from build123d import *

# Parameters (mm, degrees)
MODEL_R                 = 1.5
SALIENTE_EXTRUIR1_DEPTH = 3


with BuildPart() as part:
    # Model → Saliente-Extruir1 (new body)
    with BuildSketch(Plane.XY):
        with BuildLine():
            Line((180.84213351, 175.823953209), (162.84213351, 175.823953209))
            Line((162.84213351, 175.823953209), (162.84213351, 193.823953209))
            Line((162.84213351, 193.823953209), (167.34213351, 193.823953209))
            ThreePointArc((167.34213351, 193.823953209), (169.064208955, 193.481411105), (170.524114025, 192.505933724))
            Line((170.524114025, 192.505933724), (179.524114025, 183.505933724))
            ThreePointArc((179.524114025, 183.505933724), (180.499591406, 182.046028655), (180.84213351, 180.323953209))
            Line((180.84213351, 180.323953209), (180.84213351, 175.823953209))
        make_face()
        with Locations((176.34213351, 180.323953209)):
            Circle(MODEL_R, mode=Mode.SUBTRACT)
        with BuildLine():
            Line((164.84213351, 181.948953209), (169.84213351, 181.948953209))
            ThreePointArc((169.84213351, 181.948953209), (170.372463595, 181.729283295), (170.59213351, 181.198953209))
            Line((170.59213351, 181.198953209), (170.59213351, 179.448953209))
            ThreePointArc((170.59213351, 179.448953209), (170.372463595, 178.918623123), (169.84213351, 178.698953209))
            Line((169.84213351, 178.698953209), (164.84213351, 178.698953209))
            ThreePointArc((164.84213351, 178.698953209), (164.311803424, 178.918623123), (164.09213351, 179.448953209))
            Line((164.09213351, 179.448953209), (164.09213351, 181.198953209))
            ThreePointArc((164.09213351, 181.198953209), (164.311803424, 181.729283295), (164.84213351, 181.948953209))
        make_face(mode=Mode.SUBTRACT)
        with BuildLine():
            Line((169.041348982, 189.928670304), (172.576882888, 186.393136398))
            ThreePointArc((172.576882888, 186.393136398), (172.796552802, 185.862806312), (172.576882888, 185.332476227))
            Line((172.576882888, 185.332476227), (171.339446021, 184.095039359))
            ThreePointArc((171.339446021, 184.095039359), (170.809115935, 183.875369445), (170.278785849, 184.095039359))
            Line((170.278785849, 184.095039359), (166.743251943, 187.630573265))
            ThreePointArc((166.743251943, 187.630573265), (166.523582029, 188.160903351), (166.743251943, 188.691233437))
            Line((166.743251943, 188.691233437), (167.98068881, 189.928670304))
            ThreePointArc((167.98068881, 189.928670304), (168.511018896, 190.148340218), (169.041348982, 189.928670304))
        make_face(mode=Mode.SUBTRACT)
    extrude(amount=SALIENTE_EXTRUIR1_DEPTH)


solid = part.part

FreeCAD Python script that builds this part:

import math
import FreeCAD as App
import Part
import Sketcher

doc = App.newDocument("Part")
body = doc.addObject("PartDesign::Body", "Body")

# Sketch on XY plane
sketch1 = body.newObject("Sketcher::SketchObject", "Sketch")
sketch1.AttachmentSupport = (doc.getObject("XY_Plane"), [""])
sketch1.MapMode = "FlatFace"
sketch1.addGeometry(Part.LineSegment(App.Vector(162.842134, 175.823953, 0), App.Vector(180.842134, 175.823953, 0)), False)
sketch1.addGeometry(Part.LineSegment(App.Vector(180.842134, 175.823953, 0), App.Vector(180.842134, 180.323953, 0)), False)
sketch1.addGeometry(Part.ArcOfCircle(Part.Circle(App.Vector(176.342134, 180.323953, 0), App.Vector(0, 0, 1), 4.5), math.radians(0), math.radians(45)), False)
sketch1.addGeometry(Part.LineSegment(App.Vector(179.524114, 183.505934, 0), App.Vector(170.524114, 192.505934, 0)), False)
sketch1.addGeometry(Part.ArcOfCircle(Part.Circle(App.Vector(167.342134, 189.323953, 0), App.Vector(0, 0, 1), 4.5), math.radians(45), math.radians(90)), False)
sketch1.addGeometry(Part.LineSegment(App.Vector(167.342134, 193.823953, 0), App.Vector(162.842134, 193.823953, 0)), False)
sketch1.addGeometry(Part.LineSegment(App.Vector(162.842134, 193.823953, 0), App.Vector(162.842134, 175.823953, 0)), False)
sketch1.addGeometry(Part.Circle(App.Vector(176.342134, 180.323953, 0), App.Vector(0, 0, 1), 1.5), False)
sketch1.addGeometry(Part.LineSegment(App.Vector(164.842134, 181.948953, 0), App.Vector(169.842134, 181.948953, 0)), False)
sketch1.addGeometry(Part.ArcOfCircle(Part.Circle(App.Vector(169.842134, 181.198953, 0), App.Vector(0, 0, 1), 0.75), math.radians(0), math.radians(90)), False)
sketch1.addGeometry(Part.LineSegment(App.Vector(170.592134, 181.198953, 0), App.Vector(170.592134, 179.448953, 0)), False)
sketch1.addGeometry(Part.ArcOfCircle(Part.Circle(App.Vector(169.842134, 179.448953, 0), App.Vector(0, 0, 1), 0.75), math.radians(-90), math.radians(0)), False)
sketch1.addGeometry(Part.LineSegment(App.Vector(169.842134, 178.698953, 0), App.Vector(164.842134, 178.698953, 0)), False)
sketch1.addGeometry(Part.ArcOfCircle(Part.Circle(App.Vector(164.842134, 179.448953, 0), App.Vector(0, 0, 1), 0.75), math.radians(180), math.radians(270)), False)
sketch1.addGeometry(Part.LineSegment(App.Vector(164.092134, 179.448953, 0), App.Vector(164.092134, 181.198953, 0)), False)
sketch1.addGeometry(Part.ArcOfCircle(Part.Circle(App.Vector(164.842134, 181.198953, 0), App.Vector(0, 0, 1), 0.75), math.radians(90), math.radians(180)), False)
sketch1.addGeometry(Part.LineSegment(App.Vector(169.041349, 189.92867, 0), App.Vector(172.576883, 186.393136, 0)), False)
sketch1.addGeometry(Part.ArcOfCircle(Part.Circle(App.Vector(172.046553, 185.862806, 0), App.Vector(0, 0, 1), 0.75), math.radians(-45), math.radians(45)), False)
sketch1.addGeometry(Part.LineSegment(App.Vector(172.576883, 185.332476, 0), App.Vector(171.339446, 184.095039, 0)), False)
sketch1.addGeometry(Part.ArcOfCircle(Part.Circle(App.Vector(170.809116, 184.625369, 0), App.Vector(0, 0, 1), 0.75), math.radians(-135), math.radians(-45)), False)
sketch1.addGeometry(Part.LineSegment(App.Vector(170.278786, 184.095039, 0), App.Vector(166.743252, 187.630573, 0)), False)
sketch1.addGeometry(Part.ArcOfCircle(Part.Circle(App.Vector(167.273582, 188.160903, 0), App.Vector(0, 0, 1), 0.75), math.radians(135), math.radians(225)), False)
sketch1.addGeometry(Part.LineSegment(App.Vector(166.743252, 188.691233, 0), App.Vector(167.980689, 189.92867, 0)), False)
sketch1.addGeometry(Part.ArcOfCircle(Part.Circle(App.Vector(168.511019, 189.39834, 0), App.Vector(0, 0, 1), 0.75), math.radians(45), math.radians(135)), False)
sketch1.addConstraint(Sketcher.Constraint("Coincident", 0, 2, 1, 1))
sketch1.addConstraint(Sketcher.Constraint("Tangent", 1, 2, 2, 1))
sketch1.addConstraint(Sketcher.Constraint("Tangent", 2, 2, 3, 1))
sketch1.addConstraint(Sketcher.Constraint("Tangent", 3, 2, 4, 1))
sketch1.addConstraint(Sketcher.Constraint("Tangent", 4, 2, 5, 1))
sketch1.addConstraint(Sketcher.Constraint("Coincident", 5, 2, 6, 1))
sketch1.addConstraint(Sketcher.Constraint("Coincident", 6, 2, 0, 1))
sketch1.addConstraint(Sketcher.Constraint("Tangent", 8, 2, 9, 2))
sketch1.addConstraint(Sketcher.Constraint("Tangent", 9, 1, 10, 1))
sketch1.addConstraint(Sketcher.Constraint("Tangent", 10, 2, 11, 2))
sketch1.addConstraint(Sketcher.Constraint("Tangent", 11, 1, 12, 1))
sketch1.addConstraint(Sketcher.Constraint("Tangent", 12, 2, 13, 2))
sketch1.addConstraint(Sketcher.Constraint("Tangent", 13, 1, 14, 1))
sketch1.addConstraint(Sketcher.Constraint("Tangent", 14, 2, 15, 2))
sketch1.addConstraint(Sketcher.Constraint("Tangent", 15, 1, 8, 1))
sketch1.addConstraint(Sketcher.Constraint("Tangent", 16, 2, 17, 2))
sketch1.addConstraint(Sketcher.Constraint("Tangent", 17, 1, 18, 1))
sketch1.addConstraint(Sketcher.Constraint("Tangent", 18, 2, 19, 2))
sketch1.addConstraint(Sketcher.Constraint("Tangent", 19, 1, 20, 1))
sketch1.addConstraint(Sketcher.Constraint("Tangent", 20, 2, 21, 2))
sketch1.addConstraint(Sketcher.Constraint("Tangent", 21, 1, 22, 1))
sketch1.addConstraint(Sketcher.Constraint("Tangent", 22, 2, 23, 2))
sketch1.addConstraint(Sketcher.Constraint("Tangent", 23, 1, 16, 1))
sketch1.addConstraint(Sketcher.Constraint("Horizontal", 0))
sketch1.addConstraint(Sketcher.Constraint("Vertical", 1))
sketch1.addConstraint(Sketcher.Constraint("Horizontal", 5))
sketch1.addConstraint(Sketcher.Constraint("Vertical", 6))
sketch1.addConstraint(Sketcher.Constraint("Horizontal", 8))
sketch1.addConstraint(Sketcher.Constraint("Vertical", 10))
sketch1.addConstraint(Sketcher.Constraint("Horizontal", 12))
sketch1.addConstraint(Sketcher.Constraint("Vertical", 14))
sketch1.addConstraint(Sketcher.Constraint("Coincident", 7, 3, 2, 3))
sketch1.addConstraint(Sketcher.Constraint("Equal", 2, 4))
sketch1.addConstraint(Sketcher.Constraint("Equal", 9, 11))
sketch1.addConstraint(Sketcher.Constraint("Equal", 11, 13))
sketch1.addConstraint(Sketcher.Constraint("Equal", 13, 15))
sketch1.addConstraint(Sketcher.Constraint("Equal", 15, 17))
sketch1.addConstraint(Sketcher.Constraint("Equal", 17, 19))
sketch1.addConstraint(Sketcher.Constraint("Equal", 19, 21))
sketch1.addConstraint(Sketcher.Constraint("Equal", 21, 23))
sketch1.addConstraint(Sketcher.Constraint("Parallel", 3, 16))
sketch1.addConstraint(Sketcher.Constraint("Perpendicular", 16, 18))
sketch1.addConstraint(Sketcher.Constraint("Perpendicular", 18, 20))
sketch1.addConstraint(Sketcher.Constraint("Perpendicular", 20, 22))
sketch1.addConstraint(Sketcher.Constraint("Horizontal", 18, 2, 19, 1))
sketch1.addConstraint(Sketcher.Constraint("Equal", 5, 1))
sketch1.addConstraint(Sketcher.Constraint("Diameter", 7, 3.0))
sketch1.addConstraint(Sketcher.Constraint("Radius", 2, 4.5))
sketch1.addConstraint(Sketcher.Constraint("DistanceX", 0, 1, 0, 2, 18.0))
sketch1.addConstraint(Sketcher.Constraint("DistanceX", 8, 1, 8, 2, 5.0))
sketch1.addConstraint(Sketcher.Constraint("Radius", 9, 0.75))
sketch1.addConstraint(Sketcher.Constraint("Distance", 16, 5.0))
sketch1.addConstraint(Sketcher.Constraint("DistanceX", 5, 2, 5, 1, 4.5))
sketch1.addConstraint(Sketcher.Constraint("DistanceX", 11, 3, 0, 2, 11.0))
sketch1.addConstraint(Sketcher.Constraint("DistanceY", 10, 2, 10, 1, 1.75))
sketch1.addConstraint(Sketcher.Constraint("Distance", 18, 1.75))
sketch1.addConstraint(Sketcher.Constraint("DistanceY", 7, 3, 9, 3, 0.875))
sketch1.addConstraint(Sketcher.Constraint("DistanceX", 3, 2, 19, 3, 0.285002))
sketch1.addConstraint(Sketcher.Constraint("DistanceY", -1, 1, 19, 3, 184.625369))
sketch1.addConstraint(Sketcher.Constraint("DistanceX", -1, 1, 23, 3, 168.511019))
sketch1.addConstraint(Sketcher.Constraint("DistanceY", 21, 3, 4, 3, 1.16305))
pad1 = body.newObject("PartDesign::Pad", "Pad")
pad1.Profile = sketch1
pad1.Length = 3

doc.recompute()
